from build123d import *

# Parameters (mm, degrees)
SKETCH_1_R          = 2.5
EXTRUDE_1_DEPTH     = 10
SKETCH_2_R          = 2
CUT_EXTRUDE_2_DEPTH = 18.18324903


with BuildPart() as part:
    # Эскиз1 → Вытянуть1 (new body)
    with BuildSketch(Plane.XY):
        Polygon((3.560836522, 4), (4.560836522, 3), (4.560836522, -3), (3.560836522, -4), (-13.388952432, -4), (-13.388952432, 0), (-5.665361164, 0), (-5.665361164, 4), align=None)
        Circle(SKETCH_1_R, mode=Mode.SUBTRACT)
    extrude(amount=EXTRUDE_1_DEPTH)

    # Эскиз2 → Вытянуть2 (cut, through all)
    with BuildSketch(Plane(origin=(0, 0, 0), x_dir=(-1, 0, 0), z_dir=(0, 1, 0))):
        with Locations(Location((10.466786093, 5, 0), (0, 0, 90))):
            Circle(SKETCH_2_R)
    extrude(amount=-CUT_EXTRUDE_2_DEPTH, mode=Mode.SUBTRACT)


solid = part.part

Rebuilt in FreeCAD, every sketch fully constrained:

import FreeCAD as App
import Part
import Sketcher
Q = App.Units.Quantity


def add_polygon(sketch, points):
    """Adds a closed chain of lines whose ends are joined by coincident constraints."""
    first, n = sketch.GeometryCount, len(points)
    for a, b in zip(points, points[1:] + points[:1]):
        sketch.addGeometry(Part.LineSegment(App.Vector(*a, 0), App.Vector(*b, 0)), False)
    for i in range(n):
        sketch.addConstraint(Sketcher.Constraint("Coincident", first + i, 2, first + (i + 1) % n, 1))

doc = App.newDocument("Part")
body = doc.addObject("PartDesign::Body", "Body")

# Sketch on XY plane
sketch1 = body.newObject("Sketcher::SketchObject", "Sketch")
sketch1.AttachmentSupport = (doc.getObject("XY_Plane"), [""])
sketch1.MapMode = "FlatFace"
add_polygon(sketch1, [(4.6, 3), (3.6, 4), (-5.7, 4), (-5.7, 0), (-13.4, 0), (-13.4, -4), (3.6, -4), (4.6, -3)])  # lines 0-7
sketch1.addGeometry(Part.Circle(App.Vector(0, 0, 0), App.Vector(0, 0, 1), 2.5), False)  # 8
sketch1.addConstraint([
    Sketcher.Constraint("Horizontal", 1),
    Sketcher.Constraint("Vertical", 2),
    Sketcher.Constraint("Horizontal", 3),
    Sketcher.Constraint("Vertical", 4),
    Sketcher.Constraint("Horizontal", 5),
    Sketcher.Constraint("Vertical", 7),
    Sketcher.Constraint("Coincident", 8, 3, -1, 1),
    Sketcher.Constraint("Symmetric", 0, 2, 5, 2, -1),
    Sketcher.Constraint("PointOnObject", 2, 2, -1),
    Sketcher.Constraint("Perpendicular", 0, 6),
    Sketcher.Constraint("Equal", 0, 6),
    Sketcher.Constraint("Diameter", 8, Q("5 mm")),
    Sketcher.Constraint("DistanceY", 2, 2, 2, 1, Q("4 mm")),
    Sketcher.Constraint("DistanceY", 7, 1, 7, 2, Q("6 mm")),
    Sketcher.Constraint("DistanceX", 3, 2, 3, 1, Q("7.723591 mm")),
    Sketcher.Constraint("DistanceX", 5, 1, 5, 2, Q("16.949789 mm")),
    Sketcher.Constraint("DistanceX", 1, 2, -1, 1, Q("5.665361 mm")),
])
pad1 = body.newObject("PartDesign::Pad", "Pad")
pad1.Profile = sketch1
pad1.Length = 10

# Sketch on XZ plane
sketch2 = body.newObject("Sketcher::SketchObject", "Sketch001")
sketch2.AttachmentSupport = (doc.getObject("XZ_Plane"), [""])
sketch2.MapMode = "FlatFace"
sketch2.addGeometry(Part.Circle(App.Vector(-10.5, 5, 0), App.Vector(0, 0, 1), 2), False)
sketch2.addConstraint([
    Sketcher.Constraint("Diameter", 0, Q("4 mm")),
    Sketcher.Constraint("DistanceY", -1, 1, 0, 3, Q("5 mm")),
    Sketcher.Constraint("DistanceX", 0, 3, -1, 1, Q("10.466786 mm")),
])
pocket1 = body.newObject("PartDesign::Pocket", "Pocket")
pocket1.Profile = sketch2
pocket1.Type = "ThroughAll"
pocket1.Reversed = True

doc.recompute()
